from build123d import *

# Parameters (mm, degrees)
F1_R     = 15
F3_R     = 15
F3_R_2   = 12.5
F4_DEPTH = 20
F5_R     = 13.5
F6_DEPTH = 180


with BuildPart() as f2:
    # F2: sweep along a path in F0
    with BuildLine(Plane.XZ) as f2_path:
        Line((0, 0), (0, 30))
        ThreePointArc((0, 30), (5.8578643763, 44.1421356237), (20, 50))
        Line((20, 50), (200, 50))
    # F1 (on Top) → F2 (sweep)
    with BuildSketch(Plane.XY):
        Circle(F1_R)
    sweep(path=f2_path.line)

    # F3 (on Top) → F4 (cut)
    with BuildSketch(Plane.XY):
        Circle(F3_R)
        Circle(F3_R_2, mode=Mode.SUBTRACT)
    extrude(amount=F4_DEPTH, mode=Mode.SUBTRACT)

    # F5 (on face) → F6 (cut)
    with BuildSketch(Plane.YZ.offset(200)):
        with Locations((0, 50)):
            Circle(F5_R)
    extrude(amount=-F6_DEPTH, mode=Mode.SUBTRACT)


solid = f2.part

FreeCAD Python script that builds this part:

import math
import FreeCAD as App
import Part
import Sketcher
from FreeCAD import Vector
Q = App.Units.Quantity

doc = App.newDocument("Part")
body = doc.addObject("PartDesign::Body", "Body")

# Sketch on XY plane
sketch1 = doc.addObject("Sketcher::SketchObject", "Sketch")
body.addObject(sketch1)
sketch1.AttachmentSupport = (doc.XY_Plane, [""])
sketch1.MapMode = "FlatFace"
sketch1.addGeometry(Part.Circle(Vector(0, 0, 0), Vector(0, 0, 1), 15), False)
sketch1.addConstraint([
    Sketcher.Constraint("Coincident", 0, 3, -1, 1),
    Sketcher.Constraint("Diameter", 0, Q("30 mm")),
])

# Sketch on XZ plane
sketch2 = doc.addObject("Sketcher::SketchObject", "Sketch001")
body.addObject(sketch2)
sketch2.AttachmentSupport = (doc.XZ_Plane, [""])
sketch2.MapMode = "FlatFace"
sketch2.addGeometry([
    Part.LineSegment(Vector(0, 0, 0), Vector(0, 30, 0)),
    Part.ArcOfCircle(Part.Circle(Vector(20, 30, 0), Vector(0, 0, 1), 20), math.radians(90), math.radians(180)),
    Part.LineSegment(Vector(20, 50, 0), Vector(200, 50, 0)),
], False)
sketch2.addConstraint([
    Sketcher.Constraint("Tangent", 0, 2, 1, 2),
    Sketcher.Constraint("Tangent", 1, 1, 2, 1),
    Sketcher.Constraint("Vertical", 0),
    Sketcher.Constraint("Horizontal", 2),
    Sketcher.Constraint("Coincident", 0, 1, -1, 1),
    Sketcher.Constraint("Radius", 1, Q("20 mm")),
    Sketcher.Constraint("DistanceX", 2, 1, 2, 2, Q("180 mm")),
    Sketcher.Constraint("DistanceY", 0, 1, 0, 2, Q("30 mm")),
])
doc.recompute()

additivepipe = doc.addObject("PartDesign::AdditivePipe", "AdditivePipe")
body.addObject(additivepipe)
additivepipe.Profile = sketch1
additivepipe.Spine = (sketch2, ["Edge1", "Edge2", "Edge3"])

# Sketch on XY plane
sketch3 = doc.addObject("Sketcher::SketchObject", "Sketch002")
body.addObject(sketch3)
sketch3.AttachmentSupport = (doc.XY_Plane, [""])
sketch3.MapMode = "FlatFace"
sketch3.addGeometry([
    Part.Circle(Vector(0, 0, 0), Vector(0, 0, 1), 15),
    Part.Circle(Vector(0, 0, 0), Vector(0, 0, 1), 12),
], False)
sketch3.addConstraint([
    Sketcher.Constraint("Coincident", 0, 3, -1, 1),
    Sketcher.Constraint("Coincident", 1, 3, -1, 1),
    Sketcher.Constraint("Diameter", 0, Q("30 mm")),
    Sketcher.Constraint("Diameter", 1, Q("25 mm")),
])
pocket1 = doc.addObject("PartDesign::Pocket", "Pocket")
body.addObject(pocket1)
pocket1.Profile = sketch3
pocket1.Length = 20
pocket1.Reversed = True

# Sketch on YZ plane
sketch4 = doc.addObject("Sketcher::SketchObject", "Sketch003")
body.addObject(sketch4)
sketch4.AttachmentSupport = (doc.YZ_Plane, [""])
sketch4.MapMode = "FlatFace"
sketch4.AttachmentOffset = App.Placement(Vector(0, 0, 200), App.Rotation())
sketch4.addGeometry(Part.Circle(Vector(0, 50, 0), Vector(0, 0, 1), 14), False)
sketch4.addConstraint([
    Sketcher.Constraint("PointOnObject", 0, 3, -2),
    Sketcher.Constraint("Diameter", 0, Q("27 mm")),
    Sketcher.Constraint("DistanceY", -1, 1, 0, 3, Q("50 mm")),
])
pocket2 = doc.addObject("PartDesign::Pocket", "Pocket001")
body.addObject(pocket2)
pocket2.Profile = sketch4
pocket2.Length = 180

doc.recompute()
